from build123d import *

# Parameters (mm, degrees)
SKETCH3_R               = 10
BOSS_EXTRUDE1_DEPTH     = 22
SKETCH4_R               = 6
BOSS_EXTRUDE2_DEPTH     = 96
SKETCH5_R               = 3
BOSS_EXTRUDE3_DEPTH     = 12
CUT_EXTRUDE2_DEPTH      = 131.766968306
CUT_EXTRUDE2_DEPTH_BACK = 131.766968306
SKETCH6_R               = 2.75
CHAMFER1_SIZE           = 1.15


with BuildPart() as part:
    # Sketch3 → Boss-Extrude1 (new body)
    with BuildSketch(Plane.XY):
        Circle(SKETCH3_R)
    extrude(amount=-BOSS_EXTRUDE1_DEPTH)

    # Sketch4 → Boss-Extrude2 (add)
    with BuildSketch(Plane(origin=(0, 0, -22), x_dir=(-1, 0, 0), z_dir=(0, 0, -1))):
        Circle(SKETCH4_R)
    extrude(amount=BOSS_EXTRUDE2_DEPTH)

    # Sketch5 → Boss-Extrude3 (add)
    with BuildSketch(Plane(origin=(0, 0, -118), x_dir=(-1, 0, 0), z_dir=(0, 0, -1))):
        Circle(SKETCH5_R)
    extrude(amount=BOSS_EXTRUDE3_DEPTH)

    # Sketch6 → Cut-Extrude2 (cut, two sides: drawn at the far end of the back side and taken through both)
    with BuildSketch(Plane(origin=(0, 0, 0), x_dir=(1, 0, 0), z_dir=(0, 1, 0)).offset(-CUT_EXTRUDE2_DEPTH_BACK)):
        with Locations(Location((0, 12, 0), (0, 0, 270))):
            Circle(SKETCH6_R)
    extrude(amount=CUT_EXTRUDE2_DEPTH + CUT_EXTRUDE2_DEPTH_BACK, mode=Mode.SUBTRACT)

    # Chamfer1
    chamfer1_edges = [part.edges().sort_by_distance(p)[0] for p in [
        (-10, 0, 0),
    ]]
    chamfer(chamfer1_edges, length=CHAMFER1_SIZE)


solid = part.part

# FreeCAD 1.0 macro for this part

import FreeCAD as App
import Part
import Sketcher

V = App.Vector


def edges_at(feature, points):
    """Names of the edges that pass closest to the given points."""
    edges = feature.Shape.Edges
    near = lambda p: min(range(len(edges)), key=lambda i: edges[i].distToShape(Part.Vertex(*p))[0])
    return sorted({f"Edge{near(p) + 1}" for p in points})

doc = App.newDocument("Part")
body = doc.addObject("PartDesign::Body", "Body")

# Sketch on XY plane
sketch1 = body.newObject("Sketcher::SketchObject", "Sketch")
sketch1.AttachmentSupport = (doc.getObject("XY_Plane"), [""])
sketch1.MapMode = "FlatFace"
sketch1.addGeometry(Part.Circle(V(0, 0, 0), V(0, 0, 1), 10), False)
sketch1.addConstraint(Sketcher.Constraint("Coincident", 0, 3, -1, 1))
sketch1.addConstraint(Sketcher.Constraint("Diameter", 0, 20.0))
pad1 = body.newObject("PartDesign::Pad", "Pad")
pad1.Profile = sketch1
pad1.Length = 22
pad1.Reversed = True

# Sketch on XY plane
sketch2 = body.newObject("Sketcher::SketchObject", "Sketch001")
sketch2.AttachmentSupport = (doc.getObject("XY_Plane"), [""])
sketch2.MapMode = "FlatFace"
sketch2.AttachmentOffset = App.Placement(V(0, 0, -22), App.Rotation())
sketch2.addGeometry(Part.Circle(V(0, 0, 0), V(0, 0, 1), 6), False)
sketch2.addConstraint(Sketcher.Constraint("Coincident", 0, 3, -1, 1))
sketch2.addConstraint(Sketcher.Constraint("Diameter", 0, 12.0))
pad2 = body.newObject("PartDesign::Pad", "Pad001")
pad2.Profile = sketch2
pad2.Length = 96
pad2.Reversed = True

# Sketch on XY plane
sketch3 = body.newObject("Sketcher::SketchObject", "Sketch002")
sketch3.AttachmentSupport = (doc.getObject("XY_Plane"), [""])
sketch3.MapMode = "FlatFace"
sketch3.AttachmentOffset = App.Placement(V(0, 0, -118), App.Rotation())
sketch3.addGeometry(Part.Circle(V(0, 0, 0), V(0, 0, 1), 3), False)
sketch3.addConstraint(Sketcher.Constraint("Coincident", 0, 3, -1, 1))
sketch3.addConstraint(Sketcher.Constraint("Diameter", 0, 6.0))
pad3 = body.newObject("PartDesign::Pad", "Pad002")
pad3.Profile = sketch3
pad3.Length = 12
pad3.Reversed = True

# Sketch on XZ plane
sketch4 = body.newObject("Sketcher::SketchObject", "Sketch003")
sketch4.AttachmentSupport = (doc.getObject("XZ_Plane"), [""])
sketch4.MapMode = "FlatFace"
sketch4.addGeometry(Part.Circle(V(0, -12, 0), V(0, 0, 1), 2.8), False)
sketch4.addConstraint(Sketcher.Constraint("PointOnObject", 0, 3, -2))
sketch4.addConstraint(Sketcher.Constraint("Diameter", 0, 5.5))
sketch4.addConstraint(Sketcher.Constraint("DistanceY", 0, 3, -1, 1, 12.0))
pocket1 = body.newObject("PartDesign::Pocket", "Pocket")
pocket1.Profile = sketch4
pocket1.Type = "ThroughAll"
pocket1.Midplane = True
doc.recompute()

chamfer = body.newObject("PartDesign::Chamfer", "Chamfer")
chamfer.Base = (pocket1, edges_at(pocket1, [(-10, 0, 0)]))
chamfer.Size = 1.15

doc.recompute()
